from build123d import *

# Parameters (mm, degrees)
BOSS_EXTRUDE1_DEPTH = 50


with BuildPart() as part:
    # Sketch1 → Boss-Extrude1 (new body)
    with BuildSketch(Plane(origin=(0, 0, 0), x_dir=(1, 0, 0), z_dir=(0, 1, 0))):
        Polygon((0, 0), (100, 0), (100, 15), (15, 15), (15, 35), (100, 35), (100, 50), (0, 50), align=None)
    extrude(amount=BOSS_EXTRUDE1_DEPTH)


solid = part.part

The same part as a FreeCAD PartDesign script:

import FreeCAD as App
import Part
import Sketcher

doc = App.newDocument("Part")
body = doc.addObject("PartDesign::Body", "Body")

# Sketch on XZ plane
sketch1 = body.newObject("Sketcher::SketchObject", "Sketch")
sketch1.AttachmentSupport = (doc.getObject("XZ_Plane"), [""])
sketch1.MapMode = "FlatFace"
sketch1.addGeometry([
    Part.LineSegment(App.Vector(0, 0, 0), App.Vector(100, 0, 0)),  # 0
    Part.LineSegment(App.Vector(100, 0, 0), App.Vector(100, -15, 0)),  # 1
    Part.LineSegment(App.Vector(100, -15, 0), App.Vector(15, -15, 0)),  # 2
    Part.LineSegment(App.Vector(15, -15, 0), App.Vector(15, -35, 0)),  # 3
    Part.LineSegment(App.Vector(15, -35, 0), App.Vector(100, -35, 0)),  # 4
    Part.LineSegment(App.Vector(100, -35, 0), App.Vector(100, -50, 0)),  # 5
    Part.LineSegment(App.Vector(100, -50, 0), App.Vector(0, -50, 0)),  # 6
    Part.LineSegment(App.Vector(0, -50, 0), App.Vector(0, 0, 0)),  # 7
], False)
sketch1.addConstraint([
    Sketcher.Constraint("Coincident", 0, 2, 1, 1),
    Sketcher.Constraint("Coincident", 1, 2, 2, 1),
    Sketcher.Constraint("Coincident", 2, 2, 3, 1),
    Sketcher.Constraint("Coincident", 3, 2, 4, 1),
    Sketcher.Constraint("Coincident", 4, 2, 5, 1),
    Sketcher.Constraint("Coincident", 5, 2, 6, 1),
    Sketcher.Constraint("Coincident", 6, 2, 7, 1),
    Sketcher.Constraint("Coincident", 7, 2, 0, 1),
    Sketcher.Constraint("Horizontal", 0),
    Sketcher.Constraint("Vertical", 1),
    Sketcher.Constraint("Horizontal", 2),
    Sketcher.Constraint("Vertical", 3),
    Sketcher.Constraint("Horizontal", 4),
    Sketcher.Constraint("Vertical", 5),
    Sketcher.Constraint("Horizontal", 6),
    Sketcher.Constraint("Vertical", 7),
    Sketcher.Constraint("Coincident", 7, 2, -1, 1),
    Sketcher.Constraint("Vertical", 1, 2, 4, 2),
    Sketcher.Constraint("Equal", 1, 5),
    Sketcher.Constraint("DistanceX", 0, 1, 0, 2, 100.0),
    Sketcher.Constraint("DistanceX", 2, 2, 2, 1, 85.0),
    Sketcher.Constraint("DistanceY", 1, 2, 1, 1, 15.0),
    Sketcher.Constraint("DistanceY", 3, 2, 3, 1, 20.0),
])
pad1 = body.newObject("PartDesign::Pad", "Pad")
pad1.Profile = sketch1
pad1.Length = 50
pad1.Reversed = True

doc.recompute()
